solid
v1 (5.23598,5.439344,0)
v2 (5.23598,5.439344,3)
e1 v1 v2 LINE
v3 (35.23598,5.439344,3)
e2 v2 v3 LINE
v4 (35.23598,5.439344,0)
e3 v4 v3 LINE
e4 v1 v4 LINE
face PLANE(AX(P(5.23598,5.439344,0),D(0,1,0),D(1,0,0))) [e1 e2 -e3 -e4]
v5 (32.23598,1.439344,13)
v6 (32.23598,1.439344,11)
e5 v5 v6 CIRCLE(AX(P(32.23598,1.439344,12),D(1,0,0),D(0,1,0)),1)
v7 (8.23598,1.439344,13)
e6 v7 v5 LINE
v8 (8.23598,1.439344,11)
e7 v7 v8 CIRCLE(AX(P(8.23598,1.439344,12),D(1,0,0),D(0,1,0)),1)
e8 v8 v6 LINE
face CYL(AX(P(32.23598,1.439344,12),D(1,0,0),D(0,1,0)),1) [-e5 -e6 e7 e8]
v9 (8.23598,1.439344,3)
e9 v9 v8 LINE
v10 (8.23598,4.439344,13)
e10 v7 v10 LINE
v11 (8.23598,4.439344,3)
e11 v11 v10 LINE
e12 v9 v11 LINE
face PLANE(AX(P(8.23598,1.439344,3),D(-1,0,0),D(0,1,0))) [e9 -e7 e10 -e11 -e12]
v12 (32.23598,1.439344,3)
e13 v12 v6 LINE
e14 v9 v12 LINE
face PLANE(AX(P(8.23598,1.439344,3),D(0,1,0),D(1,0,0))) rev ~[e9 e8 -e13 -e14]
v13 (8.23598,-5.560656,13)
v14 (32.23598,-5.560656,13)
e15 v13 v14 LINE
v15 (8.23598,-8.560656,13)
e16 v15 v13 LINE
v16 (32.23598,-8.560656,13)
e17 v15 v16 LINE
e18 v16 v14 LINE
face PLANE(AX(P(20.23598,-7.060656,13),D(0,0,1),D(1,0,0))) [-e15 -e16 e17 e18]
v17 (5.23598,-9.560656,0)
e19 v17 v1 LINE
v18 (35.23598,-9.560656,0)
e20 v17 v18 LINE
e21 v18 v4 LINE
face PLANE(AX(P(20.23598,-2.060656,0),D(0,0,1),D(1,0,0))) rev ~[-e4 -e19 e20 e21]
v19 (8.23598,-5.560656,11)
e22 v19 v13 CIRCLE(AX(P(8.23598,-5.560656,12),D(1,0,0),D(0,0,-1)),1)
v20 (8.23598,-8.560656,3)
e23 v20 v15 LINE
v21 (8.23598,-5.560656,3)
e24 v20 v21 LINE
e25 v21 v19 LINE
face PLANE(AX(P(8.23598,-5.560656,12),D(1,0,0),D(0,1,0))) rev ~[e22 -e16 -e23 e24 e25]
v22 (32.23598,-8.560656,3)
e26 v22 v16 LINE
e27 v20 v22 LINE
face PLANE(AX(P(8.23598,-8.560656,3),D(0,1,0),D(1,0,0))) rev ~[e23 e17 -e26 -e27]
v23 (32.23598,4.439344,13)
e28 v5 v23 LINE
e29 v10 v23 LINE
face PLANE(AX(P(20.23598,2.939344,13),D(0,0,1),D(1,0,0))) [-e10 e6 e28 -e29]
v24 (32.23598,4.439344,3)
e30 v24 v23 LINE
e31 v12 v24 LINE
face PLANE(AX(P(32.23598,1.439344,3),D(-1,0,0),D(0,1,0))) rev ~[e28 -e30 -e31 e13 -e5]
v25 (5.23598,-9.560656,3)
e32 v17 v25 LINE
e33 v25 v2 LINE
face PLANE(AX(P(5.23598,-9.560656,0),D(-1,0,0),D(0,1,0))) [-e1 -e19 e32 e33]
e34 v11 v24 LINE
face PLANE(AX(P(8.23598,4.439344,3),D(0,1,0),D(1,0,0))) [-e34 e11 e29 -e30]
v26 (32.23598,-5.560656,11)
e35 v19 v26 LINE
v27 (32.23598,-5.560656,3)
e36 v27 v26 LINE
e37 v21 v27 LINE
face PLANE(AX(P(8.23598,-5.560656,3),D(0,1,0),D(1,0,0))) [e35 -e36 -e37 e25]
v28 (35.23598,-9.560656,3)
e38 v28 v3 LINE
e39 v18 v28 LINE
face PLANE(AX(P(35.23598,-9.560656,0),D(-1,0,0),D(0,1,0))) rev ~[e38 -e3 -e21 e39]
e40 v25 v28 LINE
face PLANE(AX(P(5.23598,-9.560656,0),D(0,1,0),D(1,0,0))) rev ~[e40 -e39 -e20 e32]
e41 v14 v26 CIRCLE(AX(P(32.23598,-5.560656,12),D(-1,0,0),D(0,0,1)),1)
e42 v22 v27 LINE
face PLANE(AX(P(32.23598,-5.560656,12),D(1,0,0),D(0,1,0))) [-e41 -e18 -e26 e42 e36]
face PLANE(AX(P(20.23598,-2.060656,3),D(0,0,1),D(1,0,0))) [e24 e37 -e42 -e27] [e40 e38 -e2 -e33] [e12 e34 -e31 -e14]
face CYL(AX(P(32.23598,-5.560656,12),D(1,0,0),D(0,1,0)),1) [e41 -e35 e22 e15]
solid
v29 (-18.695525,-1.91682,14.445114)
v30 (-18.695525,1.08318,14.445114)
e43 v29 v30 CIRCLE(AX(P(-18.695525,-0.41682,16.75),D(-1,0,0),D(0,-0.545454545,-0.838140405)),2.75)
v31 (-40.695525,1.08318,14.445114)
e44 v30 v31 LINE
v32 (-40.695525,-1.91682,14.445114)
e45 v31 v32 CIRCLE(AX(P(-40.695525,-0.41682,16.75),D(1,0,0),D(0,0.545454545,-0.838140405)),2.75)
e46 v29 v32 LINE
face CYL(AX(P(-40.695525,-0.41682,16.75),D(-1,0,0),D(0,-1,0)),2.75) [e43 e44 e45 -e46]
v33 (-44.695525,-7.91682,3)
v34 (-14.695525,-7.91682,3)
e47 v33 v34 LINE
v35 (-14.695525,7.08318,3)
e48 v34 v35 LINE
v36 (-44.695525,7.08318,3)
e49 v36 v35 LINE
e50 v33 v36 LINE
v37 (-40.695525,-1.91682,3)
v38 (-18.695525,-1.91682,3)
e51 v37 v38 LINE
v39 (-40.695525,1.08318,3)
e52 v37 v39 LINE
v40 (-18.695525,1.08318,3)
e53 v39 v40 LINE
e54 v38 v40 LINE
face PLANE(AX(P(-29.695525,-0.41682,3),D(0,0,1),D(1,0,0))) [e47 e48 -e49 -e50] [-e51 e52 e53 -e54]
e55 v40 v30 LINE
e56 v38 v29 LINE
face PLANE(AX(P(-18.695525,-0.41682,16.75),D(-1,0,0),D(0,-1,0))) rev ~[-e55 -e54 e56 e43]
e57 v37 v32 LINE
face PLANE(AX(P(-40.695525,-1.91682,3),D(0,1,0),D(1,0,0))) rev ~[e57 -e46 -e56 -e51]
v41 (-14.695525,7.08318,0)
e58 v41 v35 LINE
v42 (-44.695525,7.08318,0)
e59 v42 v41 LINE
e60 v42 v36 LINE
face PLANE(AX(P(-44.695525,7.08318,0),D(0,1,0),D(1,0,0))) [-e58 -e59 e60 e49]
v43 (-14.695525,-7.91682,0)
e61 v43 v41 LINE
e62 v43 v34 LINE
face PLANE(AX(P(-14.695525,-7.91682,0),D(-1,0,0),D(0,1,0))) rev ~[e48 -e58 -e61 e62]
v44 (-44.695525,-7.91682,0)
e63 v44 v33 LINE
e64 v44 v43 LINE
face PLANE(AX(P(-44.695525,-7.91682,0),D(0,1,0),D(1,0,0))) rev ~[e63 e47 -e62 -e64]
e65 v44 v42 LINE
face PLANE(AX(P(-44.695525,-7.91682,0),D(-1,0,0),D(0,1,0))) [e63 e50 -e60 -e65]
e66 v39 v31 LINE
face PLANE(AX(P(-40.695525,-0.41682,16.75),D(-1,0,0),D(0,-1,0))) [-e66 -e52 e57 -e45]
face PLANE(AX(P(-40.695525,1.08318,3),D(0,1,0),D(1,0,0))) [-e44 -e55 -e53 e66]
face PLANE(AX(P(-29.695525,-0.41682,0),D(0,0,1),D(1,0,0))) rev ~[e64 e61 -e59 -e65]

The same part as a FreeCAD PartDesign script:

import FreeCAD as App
import Part
import Sketcher

V = App.Vector


def add_polygon(sketch, points):
    """Adds a closed chain of lines whose ends are joined by coincident constraints."""
    first, n = sketch.GeometryCount, len(points)
    for a, b in zip(points, points[1:] + points[:1]):
        sketch.addGeometry(Part.LineSegment(App.Vector(*a, 0), App.Vector(*b, 0)), False)
    for i in range(n):
        sketch.addConstraint(Sketcher.Constraint("Coincident", first + i, 2, first + (i + 1) % n, 1))

doc = App.newDocument("Part")
body = doc.addObject("PartDesign::Body", "Body")
body.AllowCompound = True

sketch1 = body.newObject("Sketcher::SketchObject", "Sketch")
sketch1.AttachmentSupport = (doc.getObject("XY_Plane"), [""])
sketch1.MapMode = "FlatFace"
add_polygon(sketch1, [(-45, 7), (-45, -8), (-15, -8), (-15, 7)])
add_polygon(sketch1, [(5, 5), (5, -10), (35, -10), (35, 5)])
sketch1.addConstraint([
    Sketcher.Constraint("Vertical", 0),
    Sketcher.Constraint("Horizontal", 1),
    Sketcher.Constraint("Vertical", 2),
    Sketcher.Constraint("Horizontal", 3),
    Sketcher.Constraint("Vertical", 4),
    Sketcher.Constraint("Horizontal", 5),
    Sketcher.Constraint("Vertical", 6),
    Sketcher.Constraint("Horizontal", 7),
    Sketcher.Constraint("Equal", 3, 5),
    Sketcher.Constraint("Equal", 2, 4),
    Sketcher.Constraint("DistanceX", 1, 1, 1, 2, 30.0),
    Sketcher.Constraint("DistanceY", 0, 2, 0, 1, 15.0),
    Sketcher.Constraint("DistanceY", 0, 2, -1, 1, 7.91682),
    Sketcher.Constraint("DistanceX", -1, 1, 4, 2, 5.23598),
    Sketcher.Constraint("DistanceX", 0, 2, -1, 1, 44.695525),
    Sketcher.Constraint("DistanceY", 4, 2, -1, 1, 9.560656),
])
pad1 = body.newObject("PartDesign::Pad", "Pad")
pad1.Profile = sketch1
pad1.Length = 3

sketch2 = body.newObject("Sketcher::SketchObject", "Sketch001")
sketch2.AttachmentSupport = (doc.getObject("XY_Plane"), [""])
sketch2.MapMode = "FlatFace"
sketch2.AttachmentOffset = App.Placement(V(0, 0, 3), App.Rotation())
add_polygon(sketch2, [(8.2, 4.4), (8.2, 1.4), (32.2, 1.4), (32.2, 4.4)])
add_polygon(sketch2, [(8.2, -5.6), (8.2, -8.6), (32.2, -8.6), (32.2, -5.6)])
sketch2.addConstraint([
    Sketcher.Constraint("Vertical", 0),
    Sketcher.Constraint("Horizontal", 1),
    Sketcher.Constraint("Vertical", 2),
    Sketcher.Constraint("Horizontal", 3),
    Sketcher.Constraint("Vertical", 4),
    Sketcher.Constraint("Horizontal", 5),
    Sketcher.Constraint("Vertical", 6),
    Sketcher.Constraint("Horizontal", 7),
    Sketcher.Constraint("Vertical", 3, 2, 4, 2),
    Sketcher.Constraint("Vertical", 2, 2, 5, 2),
    Sketcher.Constraint("Equal", 2, 4),
    Sketcher.Constraint("DistanceX", 1, 1, 1, 2, 24.0),
    Sketcher.Constraint("DistanceY", 0, 2, 0, 1, 3.0),
    Sketcher.Constraint("DistanceY", 4, 2, 0, 2, 10.0),
    Sketcher.Constraint("DistanceX", -1, 1, 0, 2, 8.23598),
    Sketcher.Constraint("DistanceY", -1, 1, 0, 2, 1.439344),
])
pad2 = body.newObject("PartDesign::Pad", "Pad001")
pad2.Profile = sketch2
pad2.Length = 10

sketch3 = body.newObject("Sketcher::SketchObject", "Sketch002")
sketch3.AttachmentSupport = (doc.getObject("YZ_Plane"), [""])
sketch3.MapMode = "FlatFace"
sketch3.AttachmentOffset = App.Placement(V(0, 0, 32.23598), App.Rotation())
sketch3.addGeometry(Part.Circle(V(-5.6, 12, 0), V(0, 0, 1), 1), False)
sketch3.addConstraint([
    Sketcher.Constraint("Diameter", 0, 2.0),
    Sketcher.Constraint("DistanceY", -1, 1, 0, 3, 12.0),
    Sketcher.Constraint("DistanceX", 0, 3, -1, 1, 5.560656),
])
pad3 = body.newObject("PartDesign::Pad", "Pad002")
pad3.Profile = sketch3
pad3.Length = 24
pad3.Reversed = True

sketch4 = body.newObject("Sketcher::SketchObject", "Sketch003")
sketch4.AttachmentSupport = (doc.getObject("YZ_Plane"), [""])
sketch4.MapMode = "FlatFace"
sketch4.AttachmentOffset = App.Placement(V(0, 0, 32.23598), App.Rotation())
sketch4.addGeometry(Part.Circle(V(1.4, 12, 0), V(0, 0, 1), 1), False)
sketch4.addConstraint([
    Sketcher.Constraint("Diameter", 0, 2.0),
    Sketcher.Constraint("DistanceY", -1, 1, 0, 3, 12.0),
    Sketcher.Constraint("DistanceX", -1, 1, 0, 3, 1.439344),
])
pad4 = body.newObject("PartDesign::Pad", "Pad003")
pad4.Profile = sketch4
pad4.Length = 24
pad4.Reversed = True

sketch5 = body.newObject("Sketcher::SketchObject", "Sketch004")
sketch5.AttachmentSupport = (doc.getObject("XY_Plane"), [""])
sketch5.MapMode = "FlatFace"
sketch5.AttachmentOffset = App.Placement(V(0, 0, 3), App.Rotation())
add_polygon(sketch5, [(-40.7, 1.1), (-40.7, -1.9), (-18.7, -1.9), (-18.7, 1.1)])
sketch5.addConstraint([
    Sketcher.Constraint("Vertical", 0),
    Sketcher.Constraint("Horizontal", 1),
    Sketcher.Constraint("Vertical", 2),
    Sketcher.Constraint("Horizontal", 3),
    Sketcher.Constraint("DistanceX", 1, 1, 1, 2, 22.0),
    Sketcher.Constraint("DistanceY", 0, 2, 0, 1, 3.0),
    Sketcher.Constraint("DistanceY", 0, 2, -1, 1, 1.91682),
    Sketcher.Constraint("DistanceX", 0, 2, -1, 1, 40.695525),
])
pad5 = body.newObject("PartDesign::Pad", "Pad004")
pad5.Profile = sketch5
pad5.Length = 15

sketch6 = body.newObject("Sketcher::SketchObject", "Sketch005")
sketch6.AttachmentSupport = (doc.getObject("YZ_Plane"), [""])
sketch6.MapMode = "FlatFace"
sketch6.AttachmentOffset = App.Placement(V(0, 0, -40.695525), App.Rotation())
sketch6.addGeometry(Part.Circle(V(-0.4, 16.8, 0), V(0, 0, 1), 2.8), False)
sketch6.addConstraint([
    Sketcher.Constraint("Diameter", 0, 5.5),
    Sketcher.Constraint("DistanceY", -1, 1, 0, 3, 16.75),
    Sketcher.Constraint("DistanceX", 0, 3, -1, 1, 0.41682),
])
pad6 = body.newObject("PartDesign::Pad", "Pad005")
pad6.Profile = sketch6
pad6.Length = 22

doc.recompute()
